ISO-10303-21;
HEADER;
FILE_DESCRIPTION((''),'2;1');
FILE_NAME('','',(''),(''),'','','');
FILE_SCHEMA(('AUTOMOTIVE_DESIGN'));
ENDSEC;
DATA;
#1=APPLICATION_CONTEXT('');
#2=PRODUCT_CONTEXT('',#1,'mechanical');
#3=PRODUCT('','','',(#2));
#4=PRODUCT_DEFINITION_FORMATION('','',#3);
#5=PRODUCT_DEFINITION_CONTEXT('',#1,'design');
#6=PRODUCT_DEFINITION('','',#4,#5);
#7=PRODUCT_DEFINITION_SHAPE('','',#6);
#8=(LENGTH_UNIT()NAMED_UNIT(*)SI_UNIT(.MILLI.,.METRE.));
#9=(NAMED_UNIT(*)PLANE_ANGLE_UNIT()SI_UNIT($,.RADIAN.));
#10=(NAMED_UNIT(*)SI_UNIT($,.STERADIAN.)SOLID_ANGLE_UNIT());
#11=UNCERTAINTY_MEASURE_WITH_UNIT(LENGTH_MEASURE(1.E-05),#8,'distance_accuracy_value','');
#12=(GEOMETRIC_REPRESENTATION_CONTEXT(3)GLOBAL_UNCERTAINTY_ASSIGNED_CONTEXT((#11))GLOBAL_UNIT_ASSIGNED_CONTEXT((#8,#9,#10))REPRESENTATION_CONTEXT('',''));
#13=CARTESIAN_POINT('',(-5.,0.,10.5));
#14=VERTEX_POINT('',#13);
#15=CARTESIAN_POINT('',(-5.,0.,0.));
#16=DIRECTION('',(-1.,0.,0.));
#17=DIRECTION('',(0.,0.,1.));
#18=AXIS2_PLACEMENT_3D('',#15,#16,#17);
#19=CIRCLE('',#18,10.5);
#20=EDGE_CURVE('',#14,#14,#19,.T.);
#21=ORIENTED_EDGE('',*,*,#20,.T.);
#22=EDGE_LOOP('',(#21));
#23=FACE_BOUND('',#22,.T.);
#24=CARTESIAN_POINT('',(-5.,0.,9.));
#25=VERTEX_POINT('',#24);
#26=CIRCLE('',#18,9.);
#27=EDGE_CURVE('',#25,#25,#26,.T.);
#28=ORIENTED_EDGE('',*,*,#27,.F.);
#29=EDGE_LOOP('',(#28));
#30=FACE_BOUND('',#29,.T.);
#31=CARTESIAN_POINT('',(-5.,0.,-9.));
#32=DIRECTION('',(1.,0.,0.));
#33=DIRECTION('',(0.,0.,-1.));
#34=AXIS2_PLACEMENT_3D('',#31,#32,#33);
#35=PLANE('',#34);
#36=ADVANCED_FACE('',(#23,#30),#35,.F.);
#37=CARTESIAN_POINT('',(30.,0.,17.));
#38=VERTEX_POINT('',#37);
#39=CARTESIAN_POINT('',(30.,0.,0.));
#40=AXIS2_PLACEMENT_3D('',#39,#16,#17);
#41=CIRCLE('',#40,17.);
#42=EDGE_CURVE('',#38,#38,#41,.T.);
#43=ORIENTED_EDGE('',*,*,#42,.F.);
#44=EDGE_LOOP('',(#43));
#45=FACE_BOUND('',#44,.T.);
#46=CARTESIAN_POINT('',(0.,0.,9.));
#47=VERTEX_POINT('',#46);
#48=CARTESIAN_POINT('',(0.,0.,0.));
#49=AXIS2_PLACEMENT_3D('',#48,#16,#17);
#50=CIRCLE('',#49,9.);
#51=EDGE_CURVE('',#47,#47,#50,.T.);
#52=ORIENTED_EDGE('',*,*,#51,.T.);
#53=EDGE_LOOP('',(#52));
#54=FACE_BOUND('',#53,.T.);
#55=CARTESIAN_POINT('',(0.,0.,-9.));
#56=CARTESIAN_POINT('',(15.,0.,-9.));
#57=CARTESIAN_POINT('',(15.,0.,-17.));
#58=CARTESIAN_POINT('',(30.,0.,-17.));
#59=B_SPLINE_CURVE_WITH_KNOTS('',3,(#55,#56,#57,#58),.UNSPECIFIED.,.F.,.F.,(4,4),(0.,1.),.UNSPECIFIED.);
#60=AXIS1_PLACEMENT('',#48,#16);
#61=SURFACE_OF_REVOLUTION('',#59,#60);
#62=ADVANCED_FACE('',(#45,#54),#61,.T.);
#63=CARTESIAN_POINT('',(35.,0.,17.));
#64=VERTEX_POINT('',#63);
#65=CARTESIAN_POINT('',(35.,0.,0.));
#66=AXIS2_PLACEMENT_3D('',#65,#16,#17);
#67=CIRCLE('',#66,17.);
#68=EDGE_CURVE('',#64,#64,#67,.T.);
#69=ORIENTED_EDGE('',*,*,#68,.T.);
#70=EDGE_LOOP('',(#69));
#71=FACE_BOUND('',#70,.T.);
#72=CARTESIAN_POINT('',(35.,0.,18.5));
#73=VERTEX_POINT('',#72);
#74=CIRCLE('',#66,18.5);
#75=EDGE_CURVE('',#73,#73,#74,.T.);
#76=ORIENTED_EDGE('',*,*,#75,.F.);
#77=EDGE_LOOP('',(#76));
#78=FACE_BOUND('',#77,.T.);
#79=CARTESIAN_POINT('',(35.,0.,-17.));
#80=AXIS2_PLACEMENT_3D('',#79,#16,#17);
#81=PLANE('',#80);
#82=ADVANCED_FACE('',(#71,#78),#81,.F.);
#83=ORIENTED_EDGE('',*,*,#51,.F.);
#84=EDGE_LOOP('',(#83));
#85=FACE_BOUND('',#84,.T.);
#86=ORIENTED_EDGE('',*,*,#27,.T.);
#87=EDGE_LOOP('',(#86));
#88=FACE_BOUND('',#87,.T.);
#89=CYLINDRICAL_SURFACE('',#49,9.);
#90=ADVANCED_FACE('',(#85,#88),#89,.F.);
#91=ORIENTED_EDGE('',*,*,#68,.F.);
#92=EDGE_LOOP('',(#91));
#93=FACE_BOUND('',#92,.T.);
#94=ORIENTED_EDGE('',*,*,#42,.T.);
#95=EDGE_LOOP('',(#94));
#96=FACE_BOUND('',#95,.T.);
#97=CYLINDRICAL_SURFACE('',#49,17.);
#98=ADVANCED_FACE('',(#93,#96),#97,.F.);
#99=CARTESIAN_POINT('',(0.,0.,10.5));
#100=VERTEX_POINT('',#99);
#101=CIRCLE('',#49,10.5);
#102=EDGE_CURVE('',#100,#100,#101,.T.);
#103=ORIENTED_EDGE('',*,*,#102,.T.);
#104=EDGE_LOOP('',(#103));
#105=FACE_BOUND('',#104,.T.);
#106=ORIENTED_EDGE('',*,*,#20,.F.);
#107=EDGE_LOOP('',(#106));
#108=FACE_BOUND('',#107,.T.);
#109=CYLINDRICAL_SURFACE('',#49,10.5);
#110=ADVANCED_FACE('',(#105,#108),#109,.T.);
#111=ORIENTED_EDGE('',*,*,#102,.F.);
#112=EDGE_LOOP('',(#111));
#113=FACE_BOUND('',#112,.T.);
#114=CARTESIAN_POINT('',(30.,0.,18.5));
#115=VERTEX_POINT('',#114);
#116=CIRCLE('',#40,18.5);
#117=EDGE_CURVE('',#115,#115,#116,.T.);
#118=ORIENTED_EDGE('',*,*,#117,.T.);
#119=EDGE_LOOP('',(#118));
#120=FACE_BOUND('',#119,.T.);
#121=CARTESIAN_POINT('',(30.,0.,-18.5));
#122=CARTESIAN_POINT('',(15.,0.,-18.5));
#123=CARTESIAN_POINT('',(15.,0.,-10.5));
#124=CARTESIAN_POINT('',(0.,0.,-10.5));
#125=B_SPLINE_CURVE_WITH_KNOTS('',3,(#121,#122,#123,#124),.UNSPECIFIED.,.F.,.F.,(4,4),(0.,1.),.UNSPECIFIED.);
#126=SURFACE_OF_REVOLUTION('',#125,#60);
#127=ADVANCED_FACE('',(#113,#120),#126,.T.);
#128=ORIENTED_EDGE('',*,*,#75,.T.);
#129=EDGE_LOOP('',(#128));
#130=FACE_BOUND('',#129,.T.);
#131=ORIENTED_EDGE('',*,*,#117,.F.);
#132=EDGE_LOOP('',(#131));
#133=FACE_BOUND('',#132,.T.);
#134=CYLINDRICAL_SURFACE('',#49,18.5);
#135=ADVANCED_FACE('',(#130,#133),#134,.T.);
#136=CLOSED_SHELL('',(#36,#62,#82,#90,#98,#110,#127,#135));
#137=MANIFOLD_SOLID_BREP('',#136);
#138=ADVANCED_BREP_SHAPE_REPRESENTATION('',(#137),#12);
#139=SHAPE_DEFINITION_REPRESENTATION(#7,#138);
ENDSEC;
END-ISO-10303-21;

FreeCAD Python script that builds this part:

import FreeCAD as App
import Part
import Sketcher

doc = App.newDocument("Part")
body = doc.addObject("PartDesign::Body", "Body")

sketch1 = doc.addObject("Sketcher::SketchObject", "Sketch")
body.addObject(sketch1)
sketch1.AttachmentSupport = (doc.XZ_Plane, [""])
sketch1.MapMode = "FlatFace"
sketch1.addGeometry(Part.LineSegment(App.Vector(-5, -9, 0), App.Vector(0, -9, 0)), False)
sketch1.addGeometry(Part.BSplineCurve([App.Vector(0, -9, 0), App.Vector(15, -9, 0), App.Vector(15, -17, 0), App.Vector(30, -17, 0)], [4, 4], [0, 1], False, 3, [1, 1, 1, 1], False), False)
sketch1.addGeometry(Part.LineSegment(App.Vector(30, -17, 0), App.Vector(35, -17, 0)), False)
sketch1.addGeometry(Part.LineSegment(App.Vector(35, -17, 0), App.Vector(35, -18.5, 0)), False)
sketch1.addGeometry(Part.LineSegment(App.Vector(35, -18.5, 0), App.Vector(30, -18.5, 0)), False)
sketch1.addGeometry(Part.BSplineCurve([App.Vector(0, -10.5, 0), App.Vector(15, -10.5, 0), App.Vector(15, -18.5, 0), App.Vector(30, -18.5, 0)], [4, 4], [0, 1], False, 3, [1, 1, 1, 1], False), False)
sketch1.addGeometry(Part.LineSegment(App.Vector(0, -10.5, 0), App.Vector(-5, -10.5, 0)), False)
sketch1.addGeometry(Part.LineSegment(App.Vector(-5, -10.5, 0), App.Vector(-5, -9, 0)), False)
sketch1.addConstraint(Sketcher.Constraint("Block", 1))
sketch1.addConstraint(Sketcher.Constraint("Block", 5))
sketch1.addConstraint(Sketcher.Constraint("Coincident", 0, 2, 1, 1))
sketch1.addConstraint(Sketcher.Constraint("Coincident", 1, 2, 2, 1))
sketch1.addConstraint(Sketcher.Constraint("Coincident", 2, 2, 3, 1))
sketch1.addConstraint(Sketcher.Constraint("Coincident", 3, 2, 4, 1))
sketch1.addConstraint(Sketcher.Constraint("Coincident", 4, 2, 5, 2))
sketch1.addConstraint(Sketcher.Constraint("Coincident", 5, 1, 6, 1))
sketch1.addConstraint(Sketcher.Constraint("Coincident", 6, 2, 7, 1))
sketch1.addConstraint(Sketcher.Constraint("Coincident", 7, 2, 0, 1))
sketch1.addConstraint(Sketcher.Constraint("Horizontal", 0))
sketch1.addConstraint(Sketcher.Constraint("Horizontal", 2))
sketch1.addConstraint(Sketcher.Constraint("Vertical", 3))
sketch1.addConstraint(Sketcher.Constraint("Horizontal", 4))
sketch1.addConstraint(Sketcher.Constraint("Horizontal", 6))
sketch1.addConstraint(Sketcher.Constraint("Vertical", 7))
sketch1.addConstraint(Sketcher.Constraint("Equal", 0, 2))
sketch1.addConstraint(Sketcher.Constraint("DistanceX", 0, 1, 0, 2, 5.0))
revolution = doc.addObject("PartDesign::Revolution", "Revolution")
body.addObject(revolution)
revolution.Profile = sketch1
revolution.ReferenceAxis = (sketch1, ["H_Axis"])
revolution.Angle = 360

doc.recompute()
